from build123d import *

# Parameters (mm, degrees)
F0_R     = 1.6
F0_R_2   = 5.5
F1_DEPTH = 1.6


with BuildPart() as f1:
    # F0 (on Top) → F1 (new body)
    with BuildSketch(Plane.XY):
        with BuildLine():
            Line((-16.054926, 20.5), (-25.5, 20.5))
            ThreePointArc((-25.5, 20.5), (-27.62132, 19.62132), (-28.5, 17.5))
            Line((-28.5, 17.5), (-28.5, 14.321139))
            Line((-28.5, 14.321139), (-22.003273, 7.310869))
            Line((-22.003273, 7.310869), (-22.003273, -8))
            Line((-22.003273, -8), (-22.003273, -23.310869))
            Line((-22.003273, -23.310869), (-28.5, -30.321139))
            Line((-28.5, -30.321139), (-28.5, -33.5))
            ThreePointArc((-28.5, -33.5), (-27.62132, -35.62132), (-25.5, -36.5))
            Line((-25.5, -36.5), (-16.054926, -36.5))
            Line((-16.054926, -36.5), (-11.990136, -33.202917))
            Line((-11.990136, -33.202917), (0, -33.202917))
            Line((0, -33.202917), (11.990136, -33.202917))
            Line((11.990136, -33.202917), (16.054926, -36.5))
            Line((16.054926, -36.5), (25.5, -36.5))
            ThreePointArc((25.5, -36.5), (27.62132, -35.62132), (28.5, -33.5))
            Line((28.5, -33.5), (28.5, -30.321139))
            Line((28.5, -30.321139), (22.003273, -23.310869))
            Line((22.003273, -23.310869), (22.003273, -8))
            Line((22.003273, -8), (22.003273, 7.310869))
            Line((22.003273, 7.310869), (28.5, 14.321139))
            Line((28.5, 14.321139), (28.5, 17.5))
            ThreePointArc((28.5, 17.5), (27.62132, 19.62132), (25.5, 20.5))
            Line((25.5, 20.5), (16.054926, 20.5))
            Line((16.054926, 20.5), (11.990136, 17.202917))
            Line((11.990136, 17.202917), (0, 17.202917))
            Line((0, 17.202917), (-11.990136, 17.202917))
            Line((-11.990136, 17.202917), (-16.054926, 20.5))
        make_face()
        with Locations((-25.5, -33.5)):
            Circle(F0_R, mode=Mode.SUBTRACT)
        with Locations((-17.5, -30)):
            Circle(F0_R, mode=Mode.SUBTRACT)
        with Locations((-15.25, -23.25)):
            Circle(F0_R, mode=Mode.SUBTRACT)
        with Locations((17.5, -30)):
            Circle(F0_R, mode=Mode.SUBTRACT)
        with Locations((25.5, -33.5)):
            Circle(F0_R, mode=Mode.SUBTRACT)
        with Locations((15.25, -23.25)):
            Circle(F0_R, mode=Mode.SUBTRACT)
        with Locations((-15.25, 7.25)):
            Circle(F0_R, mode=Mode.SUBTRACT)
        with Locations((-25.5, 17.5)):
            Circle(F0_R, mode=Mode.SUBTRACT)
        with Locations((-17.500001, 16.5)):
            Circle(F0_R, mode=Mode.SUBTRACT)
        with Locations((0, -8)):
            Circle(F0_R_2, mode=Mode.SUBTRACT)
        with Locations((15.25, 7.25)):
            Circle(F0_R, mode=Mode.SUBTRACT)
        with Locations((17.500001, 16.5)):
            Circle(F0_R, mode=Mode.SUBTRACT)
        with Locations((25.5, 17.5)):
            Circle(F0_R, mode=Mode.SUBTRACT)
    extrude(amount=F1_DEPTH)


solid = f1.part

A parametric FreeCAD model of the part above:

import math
import FreeCAD as App
import Part
import Sketcher
from FreeCAD import Vector

doc = App.newDocument("Part")
body = doc.addObject("PartDesign::Body", "Body")

# Sketch on XY plane
sketch1 = body.newObject("Sketcher::SketchObject", "Sketch")
sketch1.AttachmentSupport = (doc.getObject("XY_Plane"), [""])
sketch1.MapMode = "FlatFace"
sketch1.addGeometry(Part.LineSegment(Vector(-16.1, 20.5, 0), Vector(-25.5, 20.5, 0)), False)
sketch1.addGeometry(Part.ArcOfCircle(Part.Circle(Vector(-25.5, 17.5, 0), Vector(0, 0, 1), 3), math.radians(90), math.radians(180)), False)
sketch1.addGeometry(Part.LineSegment(Vector(-28.5, 17.5, 0), Vector(-28.5, 14.3, 0)), False)
sketch1.addGeometry(Part.LineSegment(Vector(-28.5, 14.3, 0), Vector(-22, 7.3, 0)), False)
sketch1.addGeometry(Part.LineSegment(Vector(-22, 7.3, 0), Vector(-22, -23.3, 0)), False)
sketch1.addGeometry(Part.LineSegment(Vector(-22, -23.3, 0), Vector(-28.5, -30.3, 0)), False)
sketch1.addGeometry(Part.LineSegment(Vector(-28.5, -30.3, 0), Vector(-28.5, -33.5, 0)), False)
sketch1.addGeometry(Part.ArcOfCircle(Part.Circle(Vector(-25.5, -33.5, 0), Vector(0, 0, 1), 3), math.radians(-180), math.radians(-90)), False)
sketch1.addGeometry(Part.LineSegment(Vector(-25.5, -36.5, 0), Vector(-16.1, -36.5, 0)), False)
sketch1.addGeometry(Part.LineSegment(Vector(-16.1, -36.5, 0), Vector(-12, -33.2, 0)), False)
sketch1.addGeometry(Part.LineSegment(Vector(-12, -33.2, 0), Vector(12, -33.2, 0)), False)
sketch1.addGeometry(Part.LineSegment(Vector(12, -33.2, 0), Vector(16.1, -36.5, 0)), False)
sketch1.addGeometry(Part.LineSegment(Vector(16.1, -36.5, 0), Vector(25.5, -36.5, 0)), False)
sketch1.addGeometry(Part.ArcOfCircle(Part.Circle(Vector(25.5, -33.5, 0), Vector(0, 0, 1), 3), math.radians(-90), math.radians(0)), False)
sketch1.addGeometry(Part.LineSegment(Vector(28.5, -33.5, 0), Vector(28.5, -30.3, 0)), False)
sketch1.addGeometry(Part.LineSegment(Vector(28.5, -30.3, 0), Vector(22, -23.3, 0)), False)
sketch1.addGeometry(Part.LineSegment(Vector(22, -23.3, 0), Vector(22, 7.3, 0)), False)
sketch1.addGeometry(Part.LineSegment(Vector(22, 7.3, 0), Vector(28.5, 14.3, 0)), False)
sketch1.addGeometry(Part.LineSegment(Vector(28.5, 14.3, 0), Vector(28.5, 17.5, 0)), False)
sketch1.addGeometry(Part.ArcOfCircle(Part.Circle(Vector(25.5, 17.5, 0), Vector(0, 0, 1), 3), math.radians(0), math.radians(90)), False)
sketch1.addGeometry(Part.LineSegment(Vector(25.5, 20.5, 0), Vector(16.1, 20.5, 0)), False)
sketch1.addGeometry(Part.LineSegment(Vector(16.1, 20.5, 0), Vector(12, 17.2, 0)), False)
sketch1.addGeometry(Part.LineSegment(Vector(12, 17.2, 0), Vector(-12, 17.2, 0)), False)
sketch1.addGeometry(Part.LineSegment(Vector(-12, 17.2, 0), Vector(-16.1, 20.5, 0)), False)
sketch1.addGeometry(Part.Circle(Vector(-25.5, -33.5, 0), Vector(0, 0, 1), 1.6), False)
sketch1.addGeometry(Part.Circle(Vector(-17.5, -30, 0), Vector(0, 0, 1), 1.6), False)
sketch1.addGeometry(Part.Circle(Vector(-15.2, -23.2, 0), Vector(0, 0, 1), 1.6), False)
sketch1.addGeometry(Part.Circle(Vector(17.5, -30, 0), Vector(0, 0, 1), 1.6), False)
sketch1.addGeometry(Part.Circle(Vector(25.5, -33.5, 0), Vector(0, 0, 1), 1.6), False)
sketch1.addGeometry(Part.Circle(Vector(15.2, -23.2, 0), Vector(0, 0, 1), 1.6), False)
sketch1.addGeometry(Part.Circle(Vector(-15.2, 7.2, 0), Vector(0, 0, 1), 1.6), False)
sketch1.addGeometry(Part.Circle(Vector(-25.5, 17.5, 0), Vector(0, 0, 1), 1.6), False)
sketch1.addGeometry(Part.Circle(Vector(-17.5, 16.5, 0), Vector(0, 0, 1), 1.6), False)
sketch1.addGeometry(Part.Circle(Vector(0, -8, 0), Vector(0, 0, 1), 5.5), False)
sketch1.addGeometry(Part.Circle(Vector(15.2, 7.2, 0), Vector(0, 0, 1), 1.6), False)
sketch1.addGeometry(Part.Circle(Vector(17.5, 16.5, 0), Vector(0, 0, 1), 1.6), False)
sketch1.addGeometry(Part.Circle(Vector(25.5, 17.5, 0), Vector(0, 0, 1), 1.6), False)
sketch1.addConstraint(Sketcher.Constraint("Tangent", 0, 2, 1, 1))
sketch1.addConstraint(Sketcher.Constraint("Tangent", 1, 2, 2, 1))
sketch1.addConstraint(Sketcher.Constraint("Coincident", 2, 2, 3, 1))
sketch1.addConstraint(Sketcher.Constraint("Coincident", 3, 2, 4, 1))
sketch1.addConstraint(Sketcher.Constraint("Coincident", 4, 2, 5, 1))
sketch1.addConstraint(Sketcher.Constraint("Coincident", 5, 2, 6, 1))
sketch1.addConstraint(Sketcher.Constraint("Tangent", 6, 2, 7, 1))
sketch1.addConstraint(Sketcher.Constraint("Tangent", 7, 2, 8, 1))
sketch1.addConstraint(Sketcher.Constraint("Coincident", 8, 2, 9, 1))
sketch1.addConstraint(Sketcher.Constraint("Coincident", 9, 2, 10, 1))
sketch1.addConstraint(Sketcher.Constraint("Coincident", 10, 2, 11, 1))
sketch1.addConstraint(Sketcher.Constraint("Coincident", 11, 2, 12, 1))
sketch1.addConstraint(Sketcher.Constraint("Tangent", 12, 2, 13, 1))
sketch1.addConstraint(Sketcher.Constraint("Tangent", 13, 2, 14, 1))
sketch1.addConstraint(Sketcher.Constraint("Coincident", 14, 2, 15, 1))
sketch1.addConstraint(Sketcher.Constraint("Coincident", 15, 2, 16, 1))
sketch1.addConstraint(Sketcher.Constraint("Coincident", 16, 2, 17, 1))
sketch1.addConstraint(Sketcher.Constraint("Coincident", 17, 2, 18, 1))
sketch1.addConstraint(Sketcher.Constraint("Tangent", 18, 2, 19, 1))
sketch1.addConstraint(Sketcher.Constraint("Tangent", 19, 2, 20, 1))
sketch1.addConstraint(Sketcher.Constraint("Coincident", 20, 2, 21, 1))
sketch1.addConstraint(Sketcher.Constraint("Coincident", 21, 2, 22, 1))
sketch1.addConstraint(Sketcher.Constraint("Coincident", 22, 2, 23, 1))
sketch1.addConstraint(Sketcher.Constraint("Coincident", 23, 2, 0, 1))
sketch1.addConstraint(Sketcher.Constraint("Horizontal", 0))
sketch1.addConstraint(Sketcher.Constraint("Vertical", 2))
sketch1.addConstraint(Sketcher.Constraint("Vertical", 4))
sketch1.addConstraint(Sketcher.Constraint("Vertical", 6))
sketch1.addConstraint(Sketcher.Constraint("Horizontal", 8))
sketch1.addConstraint(Sketcher.Constraint("Horizontal", 10))
sketch1.addConstraint(Sketcher.Constraint("Horizontal", 12))
sketch1.addConstraint(Sketcher.Constraint("Vertical", 14))
sketch1.addConstraint(Sketcher.Constraint("Vertical", 16))
sketch1.addConstraint(Sketcher.Constraint("Vertical", 18))
sketch1.addConstraint(Sketcher.Constraint("Horizontal", 20))
sketch1.addConstraint(Sketcher.Constraint("Horizontal", 22))
sketch1.addConstraint(Sketcher.Constraint("Coincident", 24, 3, 7, 3))
sketch1.addConstraint(Sketcher.Constraint("Coincident", 28, 3, 13, 3))
sketch1.addConstraint(Sketcher.Constraint("Coincident", 31, 3, 1, 3))
sketch1.addConstraint(Sketcher.Constraint("Coincident", 36, 3, 19, 3))
sketch1.addConstraint(Sketcher.Constraint("Equal", 1, 7))
sketch1.addConstraint(Sketcher.Constraint("Equal", 7, 13))
sketch1.addConstraint(Sketcher.Constraint("Equal", 13, 19))
sketch1.addConstraint(Sketcher.Constraint("Equal", 24, 25))
sketch1.addConstraint(Sketcher.Constraint("Equal", 25, 26))
sketch1.addConstraint(Sketcher.Constraint("Equal", 26, 27))
sketch1.addConstraint(Sketcher.Constraint("Equal", 27, 28))
sketch1.addConstraint(Sketcher.Constraint("Equal", 28, 29))
sketch1.addConstraint(Sketcher.Constraint("Equal", 29, 30))
sketch1.addConstraint(Sketcher.Constraint("Equal", 30, 31))
sketch1.addConstraint(Sketcher.Constraint("Equal", 31, 32))
sketch1.addConstraint(Sketcher.Constraint("Equal", 32, 34))
sketch1.addConstraint(Sketcher.Constraint("Equal", 34, 35))
sketch1.addConstraint(Sketcher.Constraint("Equal", 35, 36))
sketch1.addConstraint(Sketcher.Constraint("Symmetric", 7, 3, 13, 3, -2))
sketch1.addConstraint(Sketcher.Constraint("Symmetric", 1, 3, 19, 3, -2))
sketch1.addConstraint(Sketcher.Constraint("Symmetric", 25, 3, 27, 3, -2))
sketch1.addConstraint(Sketcher.Constraint("Symmetric", 26, 3, 29, 3, -2))
sketch1.addConstraint(Sketcher.Constraint("Symmetric", 30, 3, 34, 3, -2))
sketch1.addConstraint(Sketcher.Constraint("Symmetric", 32, 3, 35, 3, -2))
sketch1.addConstraint(Sketcher.Constraint("Symmetric", 4, 2, 15, 2, -2))
sketch1.addConstraint(Sketcher.Constraint("PointOnObject", 33, 3, -2))
sketch1.addConstraint(Sketcher.Constraint("Parallel", 3, 15))
sketch1.addConstraint(Sketcher.Constraint("Parallel", 5, 17))
sketch1.addConstraint(Sketcher.Constraint("Parallel", 9, 21))
sketch1.addConstraint(Sketcher.Constraint("Parallel", 11, 23))
sketch1.addConstraint(Sketcher.Constraint("Horizontal", 5, 2, 14, 2))
sketch1.addConstraint(Sketcher.Constraint("Horizontal", 3, 2, 16, 2))
sketch1.addConstraint(Sketcher.Constraint("Vertical", 1, 3, 7, 3))
sketch1.addConstraint(Sketcher.Constraint("Vertical", 26, 3, 30, 3))
sketch1.addConstraint(Sketcher.Constraint("Vertical", 25, 3, 32, 3))
sketch1.addConstraint(Sketcher.Constraint("Vertical", 11, 2, 20, 2))
sketch1.addConstraint(Sketcher.Constraint("Vertical", 10, 2, 21, 2))
sketch1.addConstraint(Sketcher.Constraint("Vertical", 9, 2, 22, 2))
sketch1.addConstraint(Sketcher.Constraint("Vertical", 8, 2, 23, 2))
sketch1.addConstraint(Sketcher.Constraint("Equal", 8, 12))
sketch1.addConstraint(Sketcher.Constraint("Equal", 2, 6))
sketch1.addConstraint(Sketcher.Constraint("Diameter", 33, 11.0))
sketch1.addConstraint(Sketcher.Constraint("Radius", 1, 3.000001))
sketch1.addConstraint(Sketcher.Constraint("Diameter", 24, 3.2))
sketch1.addConstraint(Sketcher.Constraint("DistanceY", 25, 3, -1, 1, 30.0))
sketch1.addConstraint(Sketcher.Constraint("DistanceY", 33, 3, -1, 1, 8.0))
sketch1.addConstraint(Sketcher.Constraint("DistanceY", 24, 3, 1, 3, 50.999999))
sketch1.addConstraint(Sketcher.Constraint("DistanceX", 24, 3, 13, 3, 50.999999))
sketch1.addConstraint(Sketcher.Constraint("DistanceX", 7, 3, 25, 3, 7.999999))
sketch1.addConstraint(Sketcher.Constraint("DistanceY", 32, 3, 1, 3, 0.999999))
sketch1.addConstraint(Sketcher.Constraint("DistanceY", -1, 1, 1, 3, 17.499999))
sketch1.addConstraint(Sketcher.Constraint("DistanceX", 26, 3, 29, 3, 30.5))
sketch1.addConstraint(Sketcher.Constraint("DistanceY", 26, 3, 30, 3, 30.5))
sketch1.addConstraint(Sketcher.Constraint("DistanceY", 26, 3, -1, 1, 23.25))
sketch1.addConstraint(Sketcher.Constraint("DistanceX", 10, 1, 10, 2, 23.980272))
sketch1.addConstraint(Sketcher.Constraint("DistanceY", 2, 2, 2, 1, 3.178861))
sketch1.addConstraint(Sketcher.Constraint("DistanceY", 4, 2, 4, 1, 30.621738))
sketch1.addConstraint(Sketcher.Constraint("Distance", 3, 9.55779))
sketch1.addConstraint(Sketcher.Constraint("Distance", 9, 5.233858))
sketch1.addConstraint(Sketcher.Constraint("DistanceX", 0, 2, 0, 1, 9.445074))
pad1 = body.newObject("PartDesign::Pad", "Pad")
pad1.Profile = sketch1
pad1.Length = 1.6

doc.recompute()
